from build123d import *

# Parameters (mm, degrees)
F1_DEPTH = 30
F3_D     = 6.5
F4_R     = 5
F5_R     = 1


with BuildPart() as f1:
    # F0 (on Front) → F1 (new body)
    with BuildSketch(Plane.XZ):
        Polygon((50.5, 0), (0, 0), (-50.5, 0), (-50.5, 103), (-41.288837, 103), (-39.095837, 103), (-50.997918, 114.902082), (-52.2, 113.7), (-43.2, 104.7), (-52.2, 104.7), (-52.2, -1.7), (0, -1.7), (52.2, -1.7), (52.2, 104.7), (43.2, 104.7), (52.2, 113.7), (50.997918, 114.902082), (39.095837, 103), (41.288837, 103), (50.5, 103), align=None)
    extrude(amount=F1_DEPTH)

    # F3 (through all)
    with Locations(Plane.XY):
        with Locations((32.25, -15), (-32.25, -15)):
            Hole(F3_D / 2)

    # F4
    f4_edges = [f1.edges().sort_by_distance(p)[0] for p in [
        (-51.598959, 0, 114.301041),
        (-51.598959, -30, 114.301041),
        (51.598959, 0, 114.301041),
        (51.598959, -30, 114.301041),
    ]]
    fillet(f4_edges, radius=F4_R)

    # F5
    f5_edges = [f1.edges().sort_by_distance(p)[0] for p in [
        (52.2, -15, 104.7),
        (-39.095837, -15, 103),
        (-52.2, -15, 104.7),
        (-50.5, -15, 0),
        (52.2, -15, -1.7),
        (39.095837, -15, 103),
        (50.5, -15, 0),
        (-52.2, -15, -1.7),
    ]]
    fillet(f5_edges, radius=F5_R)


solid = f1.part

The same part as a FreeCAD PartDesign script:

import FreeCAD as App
import Part
import Sketcher

V = App.Vector
Q = App.Units.Quantity


def edges_at(feature, points):
    """Names of the edges that pass closest to the given points."""
    edges = feature.Shape.Edges
    near = lambda p: min(range(len(edges)), key=lambda i: edges[i].distToShape(Part.Vertex(*p))[0])
    return sorted({f"Edge{near(p) + 1}" for p in points})


def add_polygon(sketch, points):
    """Adds a closed chain of lines whose ends are joined by coincident constraints."""
    first, n = sketch.GeometryCount, len(points)
    for a, b in zip(points, points[1:] + points[:1]):
        sketch.addGeometry(Part.LineSegment(App.Vector(*a, 0), App.Vector(*b, 0)), False)
    for i in range(n):
        sketch.addConstraint(Sketcher.Constraint("Coincident", first + i, 2, first + (i + 1) % n, 1))

doc = App.newDocument("Part")
body = doc.addObject("PartDesign::Body", "Body")

sketch1 = doc.addObject("Sketcher::SketchObject", "Sketch")
body.addObject(sketch1)
sketch1.AttachmentSupport = (doc.XZ_Plane, [""])
sketch1.MapMode = "FlatFace"
add_polygon(sketch1, [(50.5, 0), (-50.5, 0), (-50.5, 103), (-39.095837, 103), (-50.997918, 114.902082), (-52.2, 113.7), (-43.2, 104.7), (-52.2, 104.7), (-52.2, -1.7), (52.2, -1.7), (52.2, 104.7), (43.2, 104.7), (52.2, 113.7), (50.997918, 114.902082), (39.095837, 103), (50.5, 103)])
sketch1.addConstraint([
    Sketcher.Constraint("Horizontal", 0),
    Sketcher.Constraint("Vertical", 1),
    Sketcher.Constraint("Horizontal", 2),
    Sketcher.Constraint("Horizontal", 6),
    Sketcher.Constraint("Vertical", 7),
    Sketcher.Constraint("Horizontal", 8),
    Sketcher.Constraint("Vertical", 9),
    Sketcher.Constraint("Horizontal", 10),
    Sketcher.Constraint("Horizontal", 14),
    Sketcher.Constraint("Vertical", 15),
    Sketcher.Constraint("Symmetric", 0, 2, 15, 2, -1, 1),
    Sketcher.Constraint("Symmetric", 6, 2, 9, 2, -2),
    Sketcher.Constraint("Symmetric", 4, 2, 11, 2, -2),
    Sketcher.Constraint("Symmetric", 3, 2, 12, 2, -2),
    Sketcher.Constraint("Symmetric", 2, 2, 13, 2, -2),
    Sketcher.Constraint("Perpendicular", 3, 4),
    Sketcher.Constraint("Perpendicular", 4, 5),
    Sketcher.Constraint("Perpendicular", 5, 11),
    Sketcher.Constraint("Perpendicular", 11, 12),
    Sketcher.Constraint("Vertical", 4, 2, 6, 2),
    Sketcher.Constraint("DistanceX", 0, 2, 0, 1, Q("101 mm")),
    Sketcher.Constraint("DistanceX", 6, 2, 6, 1, Q("9 mm")),
    Sketcher.Constraint("DistanceY", 1, 1, 1, 2, Q("103 mm")),
    Sketcher.Constraint("DistanceX", 8, 1, 8, 2, Q("104.4 mm")),
    Sketcher.Constraint("DistanceY", 7, 2, 7, 1, Q("106.4 mm")),
    Sketcher.Constraint("Distance", 4, Q("1.700001 mm")),
    Sketcher.Constraint("DistanceY", -1, 1, 4, 2, Q("113.7 mm")),
])
pad1 = doc.addObject("PartDesign::Pad", "Pad")
body.addObject(pad1)
pad1.Profile = sketch1
pad1.Length = 30

sketch2 = doc.addObject("Sketcher::SketchObject", "Sketch001")
body.addObject(sketch2)
sketch2.AttachmentSupport = (doc.XY_Plane, [""])
sketch2.MapMode = "FlatFace"
sketch2.addGeometry([
    Part.Circle(V(32.25, -15, 0), V(0, 0, 1), 3.25),
    Part.Circle(V(-32.25, -15, 0), V(0, 0, 1), 3.25),
], False)
sketch2.addConstraint([
    Sketcher.Constraint("Equal", 0, 1),
    Sketcher.Constraint("Symmetric", 0, 3, 1, 3, -2),
    Sketcher.Constraint("Diameter", 0, Q("6.5 mm")),
    Sketcher.Constraint("DistanceY", 0, 3, -1, 1, Q("15 mm")),
    Sketcher.Constraint("DistanceX", 1, 3, 0, 3, Q("64.5 mm")),
])
doc.recompute()
hole = doc.addObject("PartDesign::Hole", "Hole")
body.addObject(hole)
hole.Profile = sketch2
hole.ThreadType = "None"
hole.Diameter = 6.5
hole.DepthType = "ThroughAll"
doc.recompute()

fillet = doc.addObject("PartDesign::Fillet", "Fillet")
body.addObject(fillet)
fillet.Base = (hole, edges_at(hole, [
    (-51.599, 0, 114.301),
    (-51.599, -30, 114.301),
    (51.599, 0, 114.301),
    (51.599, -30, 114.301),
]))
fillet.Radius = 5
doc.recompute()

fillet2 = doc.addObject("PartDesign::Fillet", "Fillet001")
body.addObject(fillet2)
fillet2.Base = (fillet, edges_at(fillet, [
    (52.2, -15, 104.7),
    (-39.096, -15, 103),
    (-52.2, -15, 104.7),
    (-50.5, -15, 0),
    (52.2, -15, -1.7),
    (39.096, -15, 103),
    (50.5, -15, 0),
    (-52.2, -15, -1.7),
]))
fillet2.Radius = 1

doc.recompute()
